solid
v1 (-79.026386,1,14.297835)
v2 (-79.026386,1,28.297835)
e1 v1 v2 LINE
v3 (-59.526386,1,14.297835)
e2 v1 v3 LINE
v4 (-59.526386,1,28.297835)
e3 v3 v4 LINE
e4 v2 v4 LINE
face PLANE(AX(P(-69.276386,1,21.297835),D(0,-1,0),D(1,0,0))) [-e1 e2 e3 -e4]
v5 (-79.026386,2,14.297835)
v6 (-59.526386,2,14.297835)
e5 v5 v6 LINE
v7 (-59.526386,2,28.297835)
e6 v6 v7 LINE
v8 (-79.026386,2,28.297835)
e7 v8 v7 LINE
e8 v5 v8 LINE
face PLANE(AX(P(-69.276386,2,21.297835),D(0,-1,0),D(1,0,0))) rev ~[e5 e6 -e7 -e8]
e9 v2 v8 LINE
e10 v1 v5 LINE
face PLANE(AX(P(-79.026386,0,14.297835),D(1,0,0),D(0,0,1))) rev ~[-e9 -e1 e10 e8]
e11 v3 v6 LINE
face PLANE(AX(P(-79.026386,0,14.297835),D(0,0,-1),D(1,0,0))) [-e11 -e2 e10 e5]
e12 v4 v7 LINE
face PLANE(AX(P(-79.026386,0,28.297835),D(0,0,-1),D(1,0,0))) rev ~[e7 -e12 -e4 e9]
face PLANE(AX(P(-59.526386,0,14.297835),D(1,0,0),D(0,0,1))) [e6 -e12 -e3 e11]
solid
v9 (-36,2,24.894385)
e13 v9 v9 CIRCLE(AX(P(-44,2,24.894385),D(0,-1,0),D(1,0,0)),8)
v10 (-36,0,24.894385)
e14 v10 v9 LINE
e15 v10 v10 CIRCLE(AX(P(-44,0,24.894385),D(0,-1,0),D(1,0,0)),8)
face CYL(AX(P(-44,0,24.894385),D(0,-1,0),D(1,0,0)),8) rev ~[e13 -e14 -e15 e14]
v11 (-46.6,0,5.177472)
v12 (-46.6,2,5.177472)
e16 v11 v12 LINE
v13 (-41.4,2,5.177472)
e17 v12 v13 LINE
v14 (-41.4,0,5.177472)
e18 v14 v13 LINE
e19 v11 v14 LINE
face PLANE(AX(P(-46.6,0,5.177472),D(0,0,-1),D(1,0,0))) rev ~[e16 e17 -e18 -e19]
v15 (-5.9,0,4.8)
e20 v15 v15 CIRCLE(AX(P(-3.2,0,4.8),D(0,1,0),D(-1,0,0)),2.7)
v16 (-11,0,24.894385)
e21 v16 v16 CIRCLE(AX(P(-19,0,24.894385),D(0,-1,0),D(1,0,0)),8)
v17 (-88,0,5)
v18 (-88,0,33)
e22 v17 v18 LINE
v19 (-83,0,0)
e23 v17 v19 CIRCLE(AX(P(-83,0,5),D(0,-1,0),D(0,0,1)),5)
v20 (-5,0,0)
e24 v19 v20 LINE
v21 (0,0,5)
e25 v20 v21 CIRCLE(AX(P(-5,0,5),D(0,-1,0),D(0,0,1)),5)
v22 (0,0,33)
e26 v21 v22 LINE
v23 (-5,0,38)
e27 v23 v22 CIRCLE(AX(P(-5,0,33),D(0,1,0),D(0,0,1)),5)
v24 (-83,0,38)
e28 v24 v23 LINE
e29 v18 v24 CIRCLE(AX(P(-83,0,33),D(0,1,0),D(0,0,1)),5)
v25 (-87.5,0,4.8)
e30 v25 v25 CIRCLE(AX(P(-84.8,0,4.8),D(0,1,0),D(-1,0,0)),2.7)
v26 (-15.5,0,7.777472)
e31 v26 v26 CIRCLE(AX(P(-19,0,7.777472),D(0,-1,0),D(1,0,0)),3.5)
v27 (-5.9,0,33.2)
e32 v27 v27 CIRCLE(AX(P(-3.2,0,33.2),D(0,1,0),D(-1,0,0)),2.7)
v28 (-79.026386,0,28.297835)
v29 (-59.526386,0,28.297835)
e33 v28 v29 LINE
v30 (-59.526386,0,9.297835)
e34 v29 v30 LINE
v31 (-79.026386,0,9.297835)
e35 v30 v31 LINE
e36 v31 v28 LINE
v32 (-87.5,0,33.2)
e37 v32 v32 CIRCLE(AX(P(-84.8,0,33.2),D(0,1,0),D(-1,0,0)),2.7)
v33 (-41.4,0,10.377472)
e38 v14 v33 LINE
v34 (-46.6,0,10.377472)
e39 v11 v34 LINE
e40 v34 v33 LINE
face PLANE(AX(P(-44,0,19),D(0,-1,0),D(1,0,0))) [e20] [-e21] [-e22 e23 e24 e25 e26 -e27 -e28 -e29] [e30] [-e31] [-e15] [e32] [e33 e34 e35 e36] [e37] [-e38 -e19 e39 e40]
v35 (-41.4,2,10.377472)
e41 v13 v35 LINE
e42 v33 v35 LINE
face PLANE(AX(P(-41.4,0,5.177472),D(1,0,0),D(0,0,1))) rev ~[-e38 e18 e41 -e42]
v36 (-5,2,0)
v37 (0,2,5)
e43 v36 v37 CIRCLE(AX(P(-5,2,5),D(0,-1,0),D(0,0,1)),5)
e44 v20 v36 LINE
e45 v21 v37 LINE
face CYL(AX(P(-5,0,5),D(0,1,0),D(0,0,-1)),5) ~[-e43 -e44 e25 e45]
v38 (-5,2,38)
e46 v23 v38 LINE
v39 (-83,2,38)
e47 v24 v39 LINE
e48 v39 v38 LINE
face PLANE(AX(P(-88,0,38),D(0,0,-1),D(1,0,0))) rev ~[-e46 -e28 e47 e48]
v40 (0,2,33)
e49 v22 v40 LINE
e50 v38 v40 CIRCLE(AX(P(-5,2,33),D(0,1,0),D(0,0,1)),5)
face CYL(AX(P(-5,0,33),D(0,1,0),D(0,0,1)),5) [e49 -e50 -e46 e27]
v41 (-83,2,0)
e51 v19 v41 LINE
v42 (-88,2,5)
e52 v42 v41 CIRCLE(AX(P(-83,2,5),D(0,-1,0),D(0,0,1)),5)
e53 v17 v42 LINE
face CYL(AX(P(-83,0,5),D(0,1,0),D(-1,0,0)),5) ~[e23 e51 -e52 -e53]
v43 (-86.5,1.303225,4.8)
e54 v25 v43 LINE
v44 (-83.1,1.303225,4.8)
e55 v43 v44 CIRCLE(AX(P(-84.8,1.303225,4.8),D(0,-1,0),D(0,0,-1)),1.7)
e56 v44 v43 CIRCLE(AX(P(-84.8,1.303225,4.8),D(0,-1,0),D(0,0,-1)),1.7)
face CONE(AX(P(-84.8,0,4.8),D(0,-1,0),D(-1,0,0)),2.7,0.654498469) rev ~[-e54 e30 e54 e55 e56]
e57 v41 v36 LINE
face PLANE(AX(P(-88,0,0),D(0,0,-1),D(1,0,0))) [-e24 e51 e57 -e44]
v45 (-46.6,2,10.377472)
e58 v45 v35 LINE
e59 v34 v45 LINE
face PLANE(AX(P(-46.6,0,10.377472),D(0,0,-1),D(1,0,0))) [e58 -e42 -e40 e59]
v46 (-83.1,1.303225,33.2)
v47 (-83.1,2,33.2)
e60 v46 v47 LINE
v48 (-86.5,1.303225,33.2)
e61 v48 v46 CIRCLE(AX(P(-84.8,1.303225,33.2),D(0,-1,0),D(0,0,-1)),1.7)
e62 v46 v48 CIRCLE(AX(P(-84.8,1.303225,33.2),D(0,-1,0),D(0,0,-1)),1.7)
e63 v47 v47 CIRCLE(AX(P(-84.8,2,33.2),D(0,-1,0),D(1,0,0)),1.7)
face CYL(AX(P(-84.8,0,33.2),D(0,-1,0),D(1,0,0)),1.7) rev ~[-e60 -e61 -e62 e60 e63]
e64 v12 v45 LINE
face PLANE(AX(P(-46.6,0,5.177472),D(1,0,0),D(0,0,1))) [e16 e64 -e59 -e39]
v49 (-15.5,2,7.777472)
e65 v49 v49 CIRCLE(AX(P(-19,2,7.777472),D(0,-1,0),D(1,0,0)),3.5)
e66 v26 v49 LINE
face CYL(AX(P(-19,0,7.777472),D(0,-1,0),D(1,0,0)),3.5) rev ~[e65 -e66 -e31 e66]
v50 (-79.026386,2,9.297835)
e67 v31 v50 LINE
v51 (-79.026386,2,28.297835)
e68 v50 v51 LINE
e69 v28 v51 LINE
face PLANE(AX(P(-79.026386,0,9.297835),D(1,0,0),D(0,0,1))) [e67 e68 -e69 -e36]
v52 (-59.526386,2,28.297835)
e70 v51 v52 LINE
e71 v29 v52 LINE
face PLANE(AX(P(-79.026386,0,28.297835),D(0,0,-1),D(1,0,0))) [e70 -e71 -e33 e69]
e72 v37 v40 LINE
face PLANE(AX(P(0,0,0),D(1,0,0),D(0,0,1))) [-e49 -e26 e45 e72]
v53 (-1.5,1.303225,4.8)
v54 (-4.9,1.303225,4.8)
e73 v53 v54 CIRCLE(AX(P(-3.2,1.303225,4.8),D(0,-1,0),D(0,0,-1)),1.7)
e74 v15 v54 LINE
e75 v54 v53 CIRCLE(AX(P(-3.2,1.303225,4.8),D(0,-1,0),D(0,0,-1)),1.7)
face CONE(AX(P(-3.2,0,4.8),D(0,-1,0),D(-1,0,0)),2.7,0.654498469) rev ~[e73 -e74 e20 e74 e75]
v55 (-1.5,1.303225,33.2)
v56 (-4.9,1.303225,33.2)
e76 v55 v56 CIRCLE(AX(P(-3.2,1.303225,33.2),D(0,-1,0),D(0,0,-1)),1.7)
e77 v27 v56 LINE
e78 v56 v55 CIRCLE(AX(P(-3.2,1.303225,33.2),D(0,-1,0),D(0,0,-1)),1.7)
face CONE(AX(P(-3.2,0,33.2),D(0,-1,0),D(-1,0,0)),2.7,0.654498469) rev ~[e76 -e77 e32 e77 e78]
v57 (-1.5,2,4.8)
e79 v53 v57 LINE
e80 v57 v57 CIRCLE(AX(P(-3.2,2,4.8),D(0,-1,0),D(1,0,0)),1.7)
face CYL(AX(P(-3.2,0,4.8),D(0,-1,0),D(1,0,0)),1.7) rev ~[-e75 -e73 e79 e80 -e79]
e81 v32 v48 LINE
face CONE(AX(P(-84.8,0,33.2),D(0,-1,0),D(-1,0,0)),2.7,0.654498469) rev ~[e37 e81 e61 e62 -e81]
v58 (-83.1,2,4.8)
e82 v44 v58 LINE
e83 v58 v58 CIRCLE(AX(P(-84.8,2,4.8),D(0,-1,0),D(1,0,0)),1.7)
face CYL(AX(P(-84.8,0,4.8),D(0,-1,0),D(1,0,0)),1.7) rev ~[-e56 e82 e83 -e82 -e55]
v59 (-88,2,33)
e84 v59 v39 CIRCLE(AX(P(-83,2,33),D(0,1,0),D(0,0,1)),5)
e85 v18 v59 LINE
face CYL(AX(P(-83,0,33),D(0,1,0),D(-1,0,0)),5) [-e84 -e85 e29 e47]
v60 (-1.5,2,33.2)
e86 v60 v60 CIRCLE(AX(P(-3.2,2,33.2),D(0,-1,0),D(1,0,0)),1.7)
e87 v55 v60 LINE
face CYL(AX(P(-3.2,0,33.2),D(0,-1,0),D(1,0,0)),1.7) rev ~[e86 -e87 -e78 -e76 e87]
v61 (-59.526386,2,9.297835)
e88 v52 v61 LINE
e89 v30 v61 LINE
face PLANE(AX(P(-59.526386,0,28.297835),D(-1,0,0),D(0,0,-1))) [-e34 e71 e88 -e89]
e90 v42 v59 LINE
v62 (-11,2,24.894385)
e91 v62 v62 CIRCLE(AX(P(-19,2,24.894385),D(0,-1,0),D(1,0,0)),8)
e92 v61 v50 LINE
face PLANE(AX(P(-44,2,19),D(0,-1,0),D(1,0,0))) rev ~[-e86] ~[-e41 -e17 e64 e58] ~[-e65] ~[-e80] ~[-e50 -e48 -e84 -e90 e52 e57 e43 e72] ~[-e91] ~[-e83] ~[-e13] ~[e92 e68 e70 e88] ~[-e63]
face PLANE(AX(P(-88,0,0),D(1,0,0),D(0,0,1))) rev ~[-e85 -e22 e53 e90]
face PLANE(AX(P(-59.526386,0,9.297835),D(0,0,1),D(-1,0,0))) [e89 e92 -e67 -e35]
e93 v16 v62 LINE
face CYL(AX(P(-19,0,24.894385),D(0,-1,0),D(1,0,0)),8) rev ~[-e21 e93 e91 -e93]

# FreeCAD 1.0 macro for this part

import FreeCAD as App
import Part
import Sketcher


def edges_at(feature, points):
    """Names of the edges that pass closest to the given points."""
    edges = feature.Shape.Edges
    near = lambda p: min(range(len(edges)), key=lambda i: edges[i].distToShape(Part.Vertex(*p))[0])
    return sorted({f"Edge{near(p) + 1}" for p in points})


def add_polygon(sketch, points):
    """Adds a closed chain of lines whose ends are joined by coincident constraints."""
    first, n = sketch.GeometryCount, len(points)
    for a, b in zip(points, points[1:] + points[:1]):
        sketch.addGeometry(Part.LineSegment(App.Vector(*a, 0), App.Vector(*b, 0)), False)
    for i in range(n):
        sketch.addConstraint(Sketcher.Constraint("Coincident", first + i, 2, first + (i + 1) % n, 1))

doc = App.newDocument("Part")
params = doc.addObject("Spreadsheet::Sheet", "Params")
for row, (alias, value) in enumerate([
    ("sketch1_diameter", "7 mm"),
    ("sketch1_diameter2", "16 mm"),
    ("sketch1_diameter3", "3.4 mm"),
    ("sketch1_width", "88 mm"),
    ("sketch1_height", "38 mm"),
    ("pad1_length", "2 mm"),
    ("fillet_radius", "5 mm"),
    ("sketch2_diameter", "3 mm"),
    ("hole_diameter", "3 mm"),
    ("hole_depth", "13.5 mm"),
    ("hole_csink_diameter", "5.4 mm"),
    ("sketch3_height", "14 mm"),
    ("sketch3_width", "19.5 mm"),
    ("pad2_length", "2 mm"),
    ("sketch4_height", "14 mm"),
    ("sketch4_width", "19.5 mm"),
    ("pocket1_length", "1 mm"),
], start=1):
    params.set(f"A{row}", alias)
    params.set(f"B{row}", "=" + value)
    params.setAlias(f"B{row}", alias)

body = doc.addObject("PartDesign::Body", "Body")

sketch1 = body.newObject("Sketcher::SketchObject", "Sketch")
sketch1.AttachmentSupport = (doc.getObject("XZ_Plane"), [""])
sketch1.MapMode = "FlatFace"
add_polygon(sketch1, [(-88, 38), (-88, 0), (0, 0), (0, 38)])
sketch1.addGeometry(Part.Circle(App.Vector(-84.8, 4.8, 0), App.Vector(0, 0, 1), 1.7), False)
add_polygon(sketch1, [(-79.026386, 9.297835), (-79.026386, 28.297835), (-59.526386, 28.297835), (-59.526386, 9.297835)])
add_polygon(sketch1, [(-41.4, 5.177472), (-46.6, 5.177472), (-46.6, 10.377472), (-41.4, 10.377472)])
sketch1.addGeometry(Part.Circle(App.Vector(-3.2, 4.8, 0), App.Vector(0, 0, 1), 1.7), False)
sketch1.addGeometry(Part.Circle(App.Vector(-19, 7.777472, 0), App.Vector(0, 0, 1), 3.5), False)
sketch1.addGeometry(Part.Circle(App.Vector(-84.8, 33.2, 0), App.Vector(0, 0, 1), 1.7), False)
sketch1.addGeometry(Part.Circle(App.Vector(-44, 24.894385, 0), App.Vector(0, 0, 1), 8), False)
sketch1.addGeometry(Part.Circle(App.Vector(-19, 24.894385, 0), App.Vector(0, 0, 1), 8), False)
sketch1.addGeometry(Part.Circle(App.Vector(-3.2, 33.2, 0), App.Vector(0, 0, 1), 1.7), False)
sketch1.addConstraint(Sketcher.Constraint("Vertical", 0))
sketch1.addConstraint(Sketcher.Constraint("Horizontal", 1))
sketch1.addConstraint(Sketcher.Constraint("Vertical", 2))
sketch1.addConstraint(Sketcher.Constraint("Horizontal", 3))
sketch1.addConstraint(Sketcher.Constraint("Vertical", 5))
sketch1.addConstraint(Sketcher.Constraint("Horizontal", 6))
sketch1.addConstraint(Sketcher.Constraint("Vertical", 7))
sketch1.addConstraint(Sketcher.Constraint("Horizontal", 8))
sketch1.addConstraint(Sketcher.Constraint("Horizontal", 9))
sketch1.addConstraint(Sketcher.Constraint("Vertical", 10))
sketch1.addConstraint(Sketcher.Constraint("Horizontal", 11))
sketch1.addConstraint(Sketcher.Constraint("Vertical", 12))
sketch1.addConstraint(Sketcher.Constraint("Coincident", 1, 2, -1, 1))
sketch1.addConstraint(Sketcher.Constraint("Equal", 4, 13))
sketch1.addConstraint(Sketcher.Constraint("Equal", 13, 15))
sketch1.addConstraint(Sketcher.Constraint("Equal", 16, 17))
sketch1.addConstraint(Sketcher.Constraint("Equal", 15, 18))
sketch1.addConstraint(Sketcher.Constraint("Horizontal", 4, 3, 13, 3))
sketch1.addConstraint(Sketcher.Constraint("Horizontal", 16, 3, 17, 3))
sketch1.addConstraint(Sketcher.Constraint("Horizontal", 15, 3, 18, 3))
sketch1.addConstraint(Sketcher.Constraint("Vertical", 4, 3, 15, 3))
sketch1.addConstraint(Sketcher.Constraint("Vertical", 14, 3, 17, 3))
sketch1.addConstraint(Sketcher.Constraint("Vertical", 13, 3, 18, 3))
sketch1.addConstraint(Sketcher.Constraint("Equal", 11, 10))
sketch1.addConstraint(Sketcher.Constraint("Diameter", 14, 7.0))
sketch1.addConstraint(Sketcher.Constraint("Diameter", 16, 16.0))
sketch1.addConstraint(Sketcher.Constraint("Diameter", 4, 3.4))
sketch1.addConstraint(Sketcher.Constraint("DistanceX", 1, 1, 1, 2, 88.0))
sketch1.addConstraint(Sketcher.Constraint("DistanceY", 0, 2, 0, 1, 38.0))
sketch1.addConstraint(Sketcher.Constraint("DistanceY", 5, 1, 5, 2, 19.0))
sketch1.addConstraint(Sketcher.Constraint("DistanceX", 6, 1, 6, 2, 19.5))
sketch1.addConstraint(Sketcher.Constraint("DistanceX", 9, 2, 9, 1, 5.2))
sketch1.addConstraint(Sketcher.Constraint("DistanceX", 14, 3, -1, 1, 19.0))
sketch1.addConstraint(Sketcher.Constraint("DistanceX", 16, 3, -1, 1, 44.0))
sketch1.addConstraint(Sketcher.Constraint("DistanceX", 4, 3, -1, 1, 84.8))
sketch1.addConstraint(Sketcher.Constraint("DistanceY", -1, 1, 4, 3, 4.8))
sketch1.addConstraint(Sketcher.Constraint("DistanceX", 13, 3, -1, 1, 3.2))
sketch1.addConstraint(Sketcher.Constraint("DistanceY", -1, 1, 15, 3, 33.2))
sketch1.addConstraint(Sketcher.Constraint("DistanceX", 9, 2, -1, 1, 46.6))
sketch1.addConstraint(Sketcher.Constraint("DistanceY", 9, 2, 14, 3, 2.6))
sketch1.addConstraint(Sketcher.Constraint("DistanceY", -1, 1, 10, 2, 10.377472))
sketch1.addConstraint(Sketcher.Constraint("DistanceY", 16, 3, 5, 2, 3.40345))
sketch1.addConstraint(Sketcher.Constraint("DistanceY", -1, 1, 16, 3, 24.894385))
sketch1.addConstraint(Sketcher.Constraint("DistanceX", 5, 2, -1, 1, 79.026386))
sketch1.setExpression("Constraints[36]", "Params.sketch1_diameter")
sketch1.setExpression("Constraints[37]", "Params.sketch1_diameter2")
sketch1.setExpression("Constraints[38]", "Params.sketch1_diameter3")
sketch1.setExpression("Constraints[39]", "Params.sketch1_width")
sketch1.setExpression("Constraints[40]", "Params.sketch1_height")
pad1 = body.newObject("PartDesign::Pad", "Pad")
pad1.Profile = sketch1
pad1.setExpression("Length", "Params.pad1_length")
pad1.Reversed = True
doc.recompute()

fillet = body.newObject("PartDesign::Fillet", "Fillet")
fillet.Base = (pad1, edges_at(pad1, [
    (-88, 1, 38),
    (-88, 1, 0),
    (0, 1, 0),
    (0, 1, 38),
]))
fillet.setExpression("Radius", "Params.fillet_radius")

sketch2 = body.newObject("Sketcher::SketchObject", "Sketch001")
sketch2.AttachmentSupport = (doc.getObject("XZ_Plane"), [""])
sketch2.MapMode = "FlatFace"
sketch2.addGeometry(Part.Circle(App.Vector(-84.8, 4.8, 0), App.Vector(0, 0, 1), 1.5), False)
sketch2.addGeometry(Part.Circle(App.Vector(-84.8, 33.2, 0), App.Vector(0, 0, 1), 1.5), False)
sketch2.addGeometry(Part.Circle(App.Vector(-3.2, 4.8, 0), App.Vector(0, 0, 1), 1.5), False)
sketch2.addGeometry(Part.Circle(App.Vector(-3.2, 33.2, 0), App.Vector(0, 0, 1), 1.5), False)
sketch2.addConstraint(Sketcher.Constraint("Equal", 0, 1))
sketch2.addConstraint(Sketcher.Constraint("Equal", 1, 2))
sketch2.addConstraint(Sketcher.Constraint("Equal", 2, 3))
sketch2.addConstraint(Sketcher.Constraint("Horizontal", 0, 3, 2, 3))
sketch2.addConstraint(Sketcher.Constraint("Horizontal", 1, 3, 3, 3))
sketch2.addConstraint(Sketcher.Constraint("Vertical", 0, 3, 1, 3))
sketch2.addConstraint(Sketcher.Constraint("Vertical", 2, 3, 3, 3))
sketch2.addConstraint(Sketcher.Constraint("Diameter", 0, 3.0))
sketch2.addConstraint(Sketcher.Constraint("DistanceX", 0, 3, -1, 1, 84.8))
sketch2.addConstraint(Sketcher.Constraint("DistanceY", -1, 1, 0, 3, 4.8))
sketch2.addConstraint(Sketcher.Constraint("DistanceY", -1, 1, 1, 3, 33.2))
sketch2.addConstraint(Sketcher.Constraint("DistanceX", 2, 3, -1, 1, 3.2))
sketch2.setExpression("Constraints[7]", "Params.sketch2_diameter")
doc.recompute()
hole = body.newObject("PartDesign::Hole", "Hole")
hole.Profile = sketch2
hole.ThreadType = "None"
hole.setExpression("Diameter", "Params.hole_diameter")
hole.DepthType = "Dimension"
hole.setExpression("Depth", "Params.hole_depth")
hole.DrillPoint = "Flat"
hole.HoleCutType = "Countersink"
hole.setExpression("HoleCutDiameter", "Params.hole_csink_diameter")
hole.HoleCutCountersinkAngle = 75
body2 = doc.addObject("PartDesign::Body", "Body001")

sketch3 = body2.newObject("Sketcher::SketchObject", "Sketch002")
sketch3.AttachmentSupport = (doc.getObject("XZ_Plane001"), [""])
sketch3.MapMode = "FlatFace"
add_polygon(sketch3, [(-79.026386, 28.297835), (-79.026386, 14.297835), (-59.526386, 14.297835), (-59.526386, 28.297835)])
sketch3.addConstraint(Sketcher.Constraint("Vertical", 0))
sketch3.addConstraint(Sketcher.Constraint("Horizontal", 1))
sketch3.addConstraint(Sketcher.Constraint("Vertical", 2))
sketch3.addConstraint(Sketcher.Constraint("Horizontal", 3))
sketch3.addConstraint(Sketcher.Constraint("DistanceY", 0, 2, 0, 1, 14.0))
sketch3.addConstraint(Sketcher.Constraint("DistanceX", 1, 1, 1, 2, 19.5))
sketch3.addConstraint(Sketcher.Constraint("DistanceX", 0, 2, -1, 1, 79.026386))
sketch3.addConstraint(Sketcher.Constraint("DistanceY", -1, 1, 0, 2, 14.297835))
sketch3.setExpression("Constraints[8]", "Params.sketch3_height")
sketch3.setExpression("Constraints[9]", "Params.sketch3_width")
pad2 = body2.newObject("PartDesign::Pad", "Pad001")
pad2.Profile = sketch3
pad2.setExpression("Length", "Params.pad2_length")
pad2.Reversed = True

sketch4 = body2.newObject("Sketcher::SketchObject", "Sketch003")
sketch4.AttachmentSupport = (doc.getObject("XZ_Plane001"), [""])
sketch4.MapMode = "FlatFace"
add_polygon(sketch4, [(-79.026386, 28.297835), (-79.026386, 14.297835), (-59.526386, 14.297835), (-59.526386, 28.297835)])
sketch4.addConstraint(Sketcher.Constraint("Vertical", 0))
sketch4.addConstraint(Sketcher.Constraint("Horizontal", 1))
sketch4.addConstraint(Sketcher.Constraint("Vertical", 2))
sketch4.addConstraint(Sketcher.Constraint("Horizontal", 3))
sketch4.addConstraint(Sketcher.Constraint("DistanceY", 0, 2, 0, 1, 14.0))
sketch4.addConstraint(Sketcher.Constraint("DistanceX", 1, 1, 1, 2, 19.5))
sketch4.addConstraint(Sketcher.Constraint("DistanceX", 0, 2, -1, 1, 79.026386))
sketch4.addConstraint(Sketcher.Constraint("DistanceY", -1, 1, 0, 2, 14.297835))
sketch4.setExpression("Constraints[8]", "Params.sketch4_height")
sketch4.setExpression("Constraints[9]", "Params.sketch4_width")
pocket1 = body2.newObject("PartDesign::Pocket", "Pocket")
pocket1.Profile = sketch4
pocket1.setExpression("Length", "Params.pocket1_length")

doc.recompute()
